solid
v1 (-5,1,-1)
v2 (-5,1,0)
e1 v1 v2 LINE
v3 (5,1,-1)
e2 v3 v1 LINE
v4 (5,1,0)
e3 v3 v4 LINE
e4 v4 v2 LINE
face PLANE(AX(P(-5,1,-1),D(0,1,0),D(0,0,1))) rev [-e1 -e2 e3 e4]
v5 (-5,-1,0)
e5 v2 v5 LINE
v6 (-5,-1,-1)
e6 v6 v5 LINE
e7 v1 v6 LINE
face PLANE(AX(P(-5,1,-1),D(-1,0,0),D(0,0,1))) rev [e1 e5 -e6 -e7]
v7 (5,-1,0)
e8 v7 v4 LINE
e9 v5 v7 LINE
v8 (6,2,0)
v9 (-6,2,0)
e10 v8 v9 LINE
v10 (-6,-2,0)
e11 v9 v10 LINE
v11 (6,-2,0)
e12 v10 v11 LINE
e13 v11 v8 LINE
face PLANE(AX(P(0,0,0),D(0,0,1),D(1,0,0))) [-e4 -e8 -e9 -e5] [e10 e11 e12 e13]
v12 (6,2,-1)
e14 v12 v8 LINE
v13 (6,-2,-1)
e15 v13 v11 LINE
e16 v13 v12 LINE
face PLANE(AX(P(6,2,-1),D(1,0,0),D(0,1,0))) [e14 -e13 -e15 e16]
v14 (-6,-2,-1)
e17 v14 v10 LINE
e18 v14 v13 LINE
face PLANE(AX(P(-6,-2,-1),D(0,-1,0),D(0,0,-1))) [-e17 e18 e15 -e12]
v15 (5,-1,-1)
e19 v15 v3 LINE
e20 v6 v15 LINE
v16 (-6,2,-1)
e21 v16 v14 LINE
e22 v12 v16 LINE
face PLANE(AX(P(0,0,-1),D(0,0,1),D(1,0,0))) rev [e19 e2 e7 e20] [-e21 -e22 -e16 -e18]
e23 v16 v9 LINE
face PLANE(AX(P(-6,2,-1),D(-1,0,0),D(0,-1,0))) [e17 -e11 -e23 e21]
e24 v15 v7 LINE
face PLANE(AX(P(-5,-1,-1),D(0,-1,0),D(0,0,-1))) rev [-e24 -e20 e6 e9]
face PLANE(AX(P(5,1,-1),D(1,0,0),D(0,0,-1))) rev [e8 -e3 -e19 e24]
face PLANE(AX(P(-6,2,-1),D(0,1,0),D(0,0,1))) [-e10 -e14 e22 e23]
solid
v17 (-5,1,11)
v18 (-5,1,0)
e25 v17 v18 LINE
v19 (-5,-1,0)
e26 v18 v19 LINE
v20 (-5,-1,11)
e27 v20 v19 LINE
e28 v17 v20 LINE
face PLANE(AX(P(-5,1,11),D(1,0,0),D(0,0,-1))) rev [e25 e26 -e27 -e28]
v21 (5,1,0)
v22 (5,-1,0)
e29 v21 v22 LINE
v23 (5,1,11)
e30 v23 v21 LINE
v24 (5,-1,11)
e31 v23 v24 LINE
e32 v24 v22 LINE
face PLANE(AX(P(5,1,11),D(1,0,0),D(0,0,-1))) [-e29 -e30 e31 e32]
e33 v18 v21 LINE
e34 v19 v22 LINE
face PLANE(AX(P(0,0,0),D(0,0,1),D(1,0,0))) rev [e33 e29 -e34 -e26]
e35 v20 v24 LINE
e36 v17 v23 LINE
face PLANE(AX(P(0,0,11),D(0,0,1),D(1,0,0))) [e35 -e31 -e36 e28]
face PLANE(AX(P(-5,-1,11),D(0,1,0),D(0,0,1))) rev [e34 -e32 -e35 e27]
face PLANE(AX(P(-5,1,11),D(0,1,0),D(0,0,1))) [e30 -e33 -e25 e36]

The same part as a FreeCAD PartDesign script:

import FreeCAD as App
import Part
import Sketcher

V = App.Vector

doc = App.newDocument("Part")
body = doc.addObject("PartDesign::Body", "Body")

# Sketch on XY plane
sketch1 = body.newObject("Sketcher::SketchObject", "Sketch")
sketch1.AttachmentSupport = (doc.getObject("XY_Plane"), [""])
sketch1.MapMode = "FlatFace"
sketch1.addGeometry([
    Part.LineSegment(V(-5, 1, 0), V(-5, -1, 0)),
    Part.LineSegment(V(-5, -1, 0), V(5, -1, 0)),
    Part.LineSegment(V(5, -1, 0), V(5, 1, 0)),
    Part.LineSegment(V(5, 1, 0), V(-5, 1, 0)),
], False)
sketch1.addConstraint([
    Sketcher.Constraint("Coincident", 0, 2, 1, 1),
    Sketcher.Constraint("Coincident", 1, 2, 2, 1),
    Sketcher.Constraint("Coincident", 2, 2, 3, 1),
    Sketcher.Constraint("Coincident", 3, 2, 0, 1),
    Sketcher.Constraint("Vertical", 0),
    Sketcher.Constraint("Horizontal", 1),
    Sketcher.Constraint("Vertical", 2),
    Sketcher.Constraint("Horizontal", 3),
    Sketcher.Constraint("Symmetric", 0, 2, 2, 2, -1, 1),
    Sketcher.Constraint("DistanceX", 1, 1, 1, 2, 10.0),
    Sketcher.Constraint("DistanceY", 0, 2, 0, 1, 2.0),
])
pad1 = body.newObject("PartDesign::Pad", "Pad")
pad1.Profile = sketch1
pad1.Length = 11
body2 = doc.addObject("PartDesign::Body", "Body001")

# Sketch on XY plane
sketch2 = body2.newObject("Sketcher::SketchObject", "Sketch001")
sketch2.AttachmentSupport = (doc.getObject("XY_Plane001"), [""])
sketch2.MapMode = "FlatFace"
sketch2.addGeometry([
    Part.LineSegment(V(-6, 2, 0), V(-6, -2, 0)),  # 0
    Part.LineSegment(V(-6, -2, 0), V(6, -2, 0)),  # 1
    Part.LineSegment(V(6, -2, 0), V(6, 2, 0)),  # 2
    Part.LineSegment(V(6, 2, 0), V(-6, 2, 0)),  # 3
    Part.LineSegment(V(5, -1, 0), V(-5, -1, 0)),  # 4
    Part.LineSegment(V(-5, -1, 0), V(-5, 1, 0)),  # 5
    Part.LineSegment(V(-5, 1, 0), V(5, 1, 0)),  # 6
    Part.LineSegment(V(5, 1, 0), V(5, -1, 0)),  # 7
], False)
sketch2.addConstraint([
    Sketcher.Constraint("Coincident", 0, 2, 1, 1),
    Sketcher.Constraint("Coincident", 1, 2, 2, 1),
    Sketcher.Constraint("Coincident", 2, 2, 3, 1),
    Sketcher.Constraint("Coincident", 3, 2, 0, 1),
    Sketcher.Constraint("Coincident", 4, 2, 5, 1),
    Sketcher.Constraint("Coincident", 5, 2, 6, 1),
    Sketcher.Constraint("Coincident", 6, 2, 7, 1),
    Sketcher.Constraint("Coincident", 7, 2, 4, 1),
    Sketcher.Constraint("Vertical", 0),
    Sketcher.Constraint("Horizontal", 1),
    Sketcher.Constraint("Vertical", 2),
    Sketcher.Constraint("Horizontal", 3),
    Sketcher.Constraint("Horizontal", 4),
    Sketcher.Constraint("Vertical", 5),
    Sketcher.Constraint("Horizontal", 6),
    Sketcher.Constraint("Vertical", 7),
    Sketcher.Constraint("Symmetric", 0, 2, 2, 2, -1, 1),
    Sketcher.Constraint("Symmetric", 4, 2, 6, 2, -1, 1),
    Sketcher.Constraint("DistanceX", 1, 1, 1, 2, 12.0),
    Sketcher.Constraint("DistanceX", 4, 2, 4, 1, 10.0),
    Sketcher.Constraint("DistanceY", 0, 2, 0, 1, 4.0),
    Sketcher.Constraint("DistanceY", 5, 1, 5, 2, 2.0),
])
pad2 = body2.newObject("PartDesign::Pad", "Pad001")
pad2.Profile = sketch2
pad2.Length = 1
pad2.Reversed = True

doc.recompute()
